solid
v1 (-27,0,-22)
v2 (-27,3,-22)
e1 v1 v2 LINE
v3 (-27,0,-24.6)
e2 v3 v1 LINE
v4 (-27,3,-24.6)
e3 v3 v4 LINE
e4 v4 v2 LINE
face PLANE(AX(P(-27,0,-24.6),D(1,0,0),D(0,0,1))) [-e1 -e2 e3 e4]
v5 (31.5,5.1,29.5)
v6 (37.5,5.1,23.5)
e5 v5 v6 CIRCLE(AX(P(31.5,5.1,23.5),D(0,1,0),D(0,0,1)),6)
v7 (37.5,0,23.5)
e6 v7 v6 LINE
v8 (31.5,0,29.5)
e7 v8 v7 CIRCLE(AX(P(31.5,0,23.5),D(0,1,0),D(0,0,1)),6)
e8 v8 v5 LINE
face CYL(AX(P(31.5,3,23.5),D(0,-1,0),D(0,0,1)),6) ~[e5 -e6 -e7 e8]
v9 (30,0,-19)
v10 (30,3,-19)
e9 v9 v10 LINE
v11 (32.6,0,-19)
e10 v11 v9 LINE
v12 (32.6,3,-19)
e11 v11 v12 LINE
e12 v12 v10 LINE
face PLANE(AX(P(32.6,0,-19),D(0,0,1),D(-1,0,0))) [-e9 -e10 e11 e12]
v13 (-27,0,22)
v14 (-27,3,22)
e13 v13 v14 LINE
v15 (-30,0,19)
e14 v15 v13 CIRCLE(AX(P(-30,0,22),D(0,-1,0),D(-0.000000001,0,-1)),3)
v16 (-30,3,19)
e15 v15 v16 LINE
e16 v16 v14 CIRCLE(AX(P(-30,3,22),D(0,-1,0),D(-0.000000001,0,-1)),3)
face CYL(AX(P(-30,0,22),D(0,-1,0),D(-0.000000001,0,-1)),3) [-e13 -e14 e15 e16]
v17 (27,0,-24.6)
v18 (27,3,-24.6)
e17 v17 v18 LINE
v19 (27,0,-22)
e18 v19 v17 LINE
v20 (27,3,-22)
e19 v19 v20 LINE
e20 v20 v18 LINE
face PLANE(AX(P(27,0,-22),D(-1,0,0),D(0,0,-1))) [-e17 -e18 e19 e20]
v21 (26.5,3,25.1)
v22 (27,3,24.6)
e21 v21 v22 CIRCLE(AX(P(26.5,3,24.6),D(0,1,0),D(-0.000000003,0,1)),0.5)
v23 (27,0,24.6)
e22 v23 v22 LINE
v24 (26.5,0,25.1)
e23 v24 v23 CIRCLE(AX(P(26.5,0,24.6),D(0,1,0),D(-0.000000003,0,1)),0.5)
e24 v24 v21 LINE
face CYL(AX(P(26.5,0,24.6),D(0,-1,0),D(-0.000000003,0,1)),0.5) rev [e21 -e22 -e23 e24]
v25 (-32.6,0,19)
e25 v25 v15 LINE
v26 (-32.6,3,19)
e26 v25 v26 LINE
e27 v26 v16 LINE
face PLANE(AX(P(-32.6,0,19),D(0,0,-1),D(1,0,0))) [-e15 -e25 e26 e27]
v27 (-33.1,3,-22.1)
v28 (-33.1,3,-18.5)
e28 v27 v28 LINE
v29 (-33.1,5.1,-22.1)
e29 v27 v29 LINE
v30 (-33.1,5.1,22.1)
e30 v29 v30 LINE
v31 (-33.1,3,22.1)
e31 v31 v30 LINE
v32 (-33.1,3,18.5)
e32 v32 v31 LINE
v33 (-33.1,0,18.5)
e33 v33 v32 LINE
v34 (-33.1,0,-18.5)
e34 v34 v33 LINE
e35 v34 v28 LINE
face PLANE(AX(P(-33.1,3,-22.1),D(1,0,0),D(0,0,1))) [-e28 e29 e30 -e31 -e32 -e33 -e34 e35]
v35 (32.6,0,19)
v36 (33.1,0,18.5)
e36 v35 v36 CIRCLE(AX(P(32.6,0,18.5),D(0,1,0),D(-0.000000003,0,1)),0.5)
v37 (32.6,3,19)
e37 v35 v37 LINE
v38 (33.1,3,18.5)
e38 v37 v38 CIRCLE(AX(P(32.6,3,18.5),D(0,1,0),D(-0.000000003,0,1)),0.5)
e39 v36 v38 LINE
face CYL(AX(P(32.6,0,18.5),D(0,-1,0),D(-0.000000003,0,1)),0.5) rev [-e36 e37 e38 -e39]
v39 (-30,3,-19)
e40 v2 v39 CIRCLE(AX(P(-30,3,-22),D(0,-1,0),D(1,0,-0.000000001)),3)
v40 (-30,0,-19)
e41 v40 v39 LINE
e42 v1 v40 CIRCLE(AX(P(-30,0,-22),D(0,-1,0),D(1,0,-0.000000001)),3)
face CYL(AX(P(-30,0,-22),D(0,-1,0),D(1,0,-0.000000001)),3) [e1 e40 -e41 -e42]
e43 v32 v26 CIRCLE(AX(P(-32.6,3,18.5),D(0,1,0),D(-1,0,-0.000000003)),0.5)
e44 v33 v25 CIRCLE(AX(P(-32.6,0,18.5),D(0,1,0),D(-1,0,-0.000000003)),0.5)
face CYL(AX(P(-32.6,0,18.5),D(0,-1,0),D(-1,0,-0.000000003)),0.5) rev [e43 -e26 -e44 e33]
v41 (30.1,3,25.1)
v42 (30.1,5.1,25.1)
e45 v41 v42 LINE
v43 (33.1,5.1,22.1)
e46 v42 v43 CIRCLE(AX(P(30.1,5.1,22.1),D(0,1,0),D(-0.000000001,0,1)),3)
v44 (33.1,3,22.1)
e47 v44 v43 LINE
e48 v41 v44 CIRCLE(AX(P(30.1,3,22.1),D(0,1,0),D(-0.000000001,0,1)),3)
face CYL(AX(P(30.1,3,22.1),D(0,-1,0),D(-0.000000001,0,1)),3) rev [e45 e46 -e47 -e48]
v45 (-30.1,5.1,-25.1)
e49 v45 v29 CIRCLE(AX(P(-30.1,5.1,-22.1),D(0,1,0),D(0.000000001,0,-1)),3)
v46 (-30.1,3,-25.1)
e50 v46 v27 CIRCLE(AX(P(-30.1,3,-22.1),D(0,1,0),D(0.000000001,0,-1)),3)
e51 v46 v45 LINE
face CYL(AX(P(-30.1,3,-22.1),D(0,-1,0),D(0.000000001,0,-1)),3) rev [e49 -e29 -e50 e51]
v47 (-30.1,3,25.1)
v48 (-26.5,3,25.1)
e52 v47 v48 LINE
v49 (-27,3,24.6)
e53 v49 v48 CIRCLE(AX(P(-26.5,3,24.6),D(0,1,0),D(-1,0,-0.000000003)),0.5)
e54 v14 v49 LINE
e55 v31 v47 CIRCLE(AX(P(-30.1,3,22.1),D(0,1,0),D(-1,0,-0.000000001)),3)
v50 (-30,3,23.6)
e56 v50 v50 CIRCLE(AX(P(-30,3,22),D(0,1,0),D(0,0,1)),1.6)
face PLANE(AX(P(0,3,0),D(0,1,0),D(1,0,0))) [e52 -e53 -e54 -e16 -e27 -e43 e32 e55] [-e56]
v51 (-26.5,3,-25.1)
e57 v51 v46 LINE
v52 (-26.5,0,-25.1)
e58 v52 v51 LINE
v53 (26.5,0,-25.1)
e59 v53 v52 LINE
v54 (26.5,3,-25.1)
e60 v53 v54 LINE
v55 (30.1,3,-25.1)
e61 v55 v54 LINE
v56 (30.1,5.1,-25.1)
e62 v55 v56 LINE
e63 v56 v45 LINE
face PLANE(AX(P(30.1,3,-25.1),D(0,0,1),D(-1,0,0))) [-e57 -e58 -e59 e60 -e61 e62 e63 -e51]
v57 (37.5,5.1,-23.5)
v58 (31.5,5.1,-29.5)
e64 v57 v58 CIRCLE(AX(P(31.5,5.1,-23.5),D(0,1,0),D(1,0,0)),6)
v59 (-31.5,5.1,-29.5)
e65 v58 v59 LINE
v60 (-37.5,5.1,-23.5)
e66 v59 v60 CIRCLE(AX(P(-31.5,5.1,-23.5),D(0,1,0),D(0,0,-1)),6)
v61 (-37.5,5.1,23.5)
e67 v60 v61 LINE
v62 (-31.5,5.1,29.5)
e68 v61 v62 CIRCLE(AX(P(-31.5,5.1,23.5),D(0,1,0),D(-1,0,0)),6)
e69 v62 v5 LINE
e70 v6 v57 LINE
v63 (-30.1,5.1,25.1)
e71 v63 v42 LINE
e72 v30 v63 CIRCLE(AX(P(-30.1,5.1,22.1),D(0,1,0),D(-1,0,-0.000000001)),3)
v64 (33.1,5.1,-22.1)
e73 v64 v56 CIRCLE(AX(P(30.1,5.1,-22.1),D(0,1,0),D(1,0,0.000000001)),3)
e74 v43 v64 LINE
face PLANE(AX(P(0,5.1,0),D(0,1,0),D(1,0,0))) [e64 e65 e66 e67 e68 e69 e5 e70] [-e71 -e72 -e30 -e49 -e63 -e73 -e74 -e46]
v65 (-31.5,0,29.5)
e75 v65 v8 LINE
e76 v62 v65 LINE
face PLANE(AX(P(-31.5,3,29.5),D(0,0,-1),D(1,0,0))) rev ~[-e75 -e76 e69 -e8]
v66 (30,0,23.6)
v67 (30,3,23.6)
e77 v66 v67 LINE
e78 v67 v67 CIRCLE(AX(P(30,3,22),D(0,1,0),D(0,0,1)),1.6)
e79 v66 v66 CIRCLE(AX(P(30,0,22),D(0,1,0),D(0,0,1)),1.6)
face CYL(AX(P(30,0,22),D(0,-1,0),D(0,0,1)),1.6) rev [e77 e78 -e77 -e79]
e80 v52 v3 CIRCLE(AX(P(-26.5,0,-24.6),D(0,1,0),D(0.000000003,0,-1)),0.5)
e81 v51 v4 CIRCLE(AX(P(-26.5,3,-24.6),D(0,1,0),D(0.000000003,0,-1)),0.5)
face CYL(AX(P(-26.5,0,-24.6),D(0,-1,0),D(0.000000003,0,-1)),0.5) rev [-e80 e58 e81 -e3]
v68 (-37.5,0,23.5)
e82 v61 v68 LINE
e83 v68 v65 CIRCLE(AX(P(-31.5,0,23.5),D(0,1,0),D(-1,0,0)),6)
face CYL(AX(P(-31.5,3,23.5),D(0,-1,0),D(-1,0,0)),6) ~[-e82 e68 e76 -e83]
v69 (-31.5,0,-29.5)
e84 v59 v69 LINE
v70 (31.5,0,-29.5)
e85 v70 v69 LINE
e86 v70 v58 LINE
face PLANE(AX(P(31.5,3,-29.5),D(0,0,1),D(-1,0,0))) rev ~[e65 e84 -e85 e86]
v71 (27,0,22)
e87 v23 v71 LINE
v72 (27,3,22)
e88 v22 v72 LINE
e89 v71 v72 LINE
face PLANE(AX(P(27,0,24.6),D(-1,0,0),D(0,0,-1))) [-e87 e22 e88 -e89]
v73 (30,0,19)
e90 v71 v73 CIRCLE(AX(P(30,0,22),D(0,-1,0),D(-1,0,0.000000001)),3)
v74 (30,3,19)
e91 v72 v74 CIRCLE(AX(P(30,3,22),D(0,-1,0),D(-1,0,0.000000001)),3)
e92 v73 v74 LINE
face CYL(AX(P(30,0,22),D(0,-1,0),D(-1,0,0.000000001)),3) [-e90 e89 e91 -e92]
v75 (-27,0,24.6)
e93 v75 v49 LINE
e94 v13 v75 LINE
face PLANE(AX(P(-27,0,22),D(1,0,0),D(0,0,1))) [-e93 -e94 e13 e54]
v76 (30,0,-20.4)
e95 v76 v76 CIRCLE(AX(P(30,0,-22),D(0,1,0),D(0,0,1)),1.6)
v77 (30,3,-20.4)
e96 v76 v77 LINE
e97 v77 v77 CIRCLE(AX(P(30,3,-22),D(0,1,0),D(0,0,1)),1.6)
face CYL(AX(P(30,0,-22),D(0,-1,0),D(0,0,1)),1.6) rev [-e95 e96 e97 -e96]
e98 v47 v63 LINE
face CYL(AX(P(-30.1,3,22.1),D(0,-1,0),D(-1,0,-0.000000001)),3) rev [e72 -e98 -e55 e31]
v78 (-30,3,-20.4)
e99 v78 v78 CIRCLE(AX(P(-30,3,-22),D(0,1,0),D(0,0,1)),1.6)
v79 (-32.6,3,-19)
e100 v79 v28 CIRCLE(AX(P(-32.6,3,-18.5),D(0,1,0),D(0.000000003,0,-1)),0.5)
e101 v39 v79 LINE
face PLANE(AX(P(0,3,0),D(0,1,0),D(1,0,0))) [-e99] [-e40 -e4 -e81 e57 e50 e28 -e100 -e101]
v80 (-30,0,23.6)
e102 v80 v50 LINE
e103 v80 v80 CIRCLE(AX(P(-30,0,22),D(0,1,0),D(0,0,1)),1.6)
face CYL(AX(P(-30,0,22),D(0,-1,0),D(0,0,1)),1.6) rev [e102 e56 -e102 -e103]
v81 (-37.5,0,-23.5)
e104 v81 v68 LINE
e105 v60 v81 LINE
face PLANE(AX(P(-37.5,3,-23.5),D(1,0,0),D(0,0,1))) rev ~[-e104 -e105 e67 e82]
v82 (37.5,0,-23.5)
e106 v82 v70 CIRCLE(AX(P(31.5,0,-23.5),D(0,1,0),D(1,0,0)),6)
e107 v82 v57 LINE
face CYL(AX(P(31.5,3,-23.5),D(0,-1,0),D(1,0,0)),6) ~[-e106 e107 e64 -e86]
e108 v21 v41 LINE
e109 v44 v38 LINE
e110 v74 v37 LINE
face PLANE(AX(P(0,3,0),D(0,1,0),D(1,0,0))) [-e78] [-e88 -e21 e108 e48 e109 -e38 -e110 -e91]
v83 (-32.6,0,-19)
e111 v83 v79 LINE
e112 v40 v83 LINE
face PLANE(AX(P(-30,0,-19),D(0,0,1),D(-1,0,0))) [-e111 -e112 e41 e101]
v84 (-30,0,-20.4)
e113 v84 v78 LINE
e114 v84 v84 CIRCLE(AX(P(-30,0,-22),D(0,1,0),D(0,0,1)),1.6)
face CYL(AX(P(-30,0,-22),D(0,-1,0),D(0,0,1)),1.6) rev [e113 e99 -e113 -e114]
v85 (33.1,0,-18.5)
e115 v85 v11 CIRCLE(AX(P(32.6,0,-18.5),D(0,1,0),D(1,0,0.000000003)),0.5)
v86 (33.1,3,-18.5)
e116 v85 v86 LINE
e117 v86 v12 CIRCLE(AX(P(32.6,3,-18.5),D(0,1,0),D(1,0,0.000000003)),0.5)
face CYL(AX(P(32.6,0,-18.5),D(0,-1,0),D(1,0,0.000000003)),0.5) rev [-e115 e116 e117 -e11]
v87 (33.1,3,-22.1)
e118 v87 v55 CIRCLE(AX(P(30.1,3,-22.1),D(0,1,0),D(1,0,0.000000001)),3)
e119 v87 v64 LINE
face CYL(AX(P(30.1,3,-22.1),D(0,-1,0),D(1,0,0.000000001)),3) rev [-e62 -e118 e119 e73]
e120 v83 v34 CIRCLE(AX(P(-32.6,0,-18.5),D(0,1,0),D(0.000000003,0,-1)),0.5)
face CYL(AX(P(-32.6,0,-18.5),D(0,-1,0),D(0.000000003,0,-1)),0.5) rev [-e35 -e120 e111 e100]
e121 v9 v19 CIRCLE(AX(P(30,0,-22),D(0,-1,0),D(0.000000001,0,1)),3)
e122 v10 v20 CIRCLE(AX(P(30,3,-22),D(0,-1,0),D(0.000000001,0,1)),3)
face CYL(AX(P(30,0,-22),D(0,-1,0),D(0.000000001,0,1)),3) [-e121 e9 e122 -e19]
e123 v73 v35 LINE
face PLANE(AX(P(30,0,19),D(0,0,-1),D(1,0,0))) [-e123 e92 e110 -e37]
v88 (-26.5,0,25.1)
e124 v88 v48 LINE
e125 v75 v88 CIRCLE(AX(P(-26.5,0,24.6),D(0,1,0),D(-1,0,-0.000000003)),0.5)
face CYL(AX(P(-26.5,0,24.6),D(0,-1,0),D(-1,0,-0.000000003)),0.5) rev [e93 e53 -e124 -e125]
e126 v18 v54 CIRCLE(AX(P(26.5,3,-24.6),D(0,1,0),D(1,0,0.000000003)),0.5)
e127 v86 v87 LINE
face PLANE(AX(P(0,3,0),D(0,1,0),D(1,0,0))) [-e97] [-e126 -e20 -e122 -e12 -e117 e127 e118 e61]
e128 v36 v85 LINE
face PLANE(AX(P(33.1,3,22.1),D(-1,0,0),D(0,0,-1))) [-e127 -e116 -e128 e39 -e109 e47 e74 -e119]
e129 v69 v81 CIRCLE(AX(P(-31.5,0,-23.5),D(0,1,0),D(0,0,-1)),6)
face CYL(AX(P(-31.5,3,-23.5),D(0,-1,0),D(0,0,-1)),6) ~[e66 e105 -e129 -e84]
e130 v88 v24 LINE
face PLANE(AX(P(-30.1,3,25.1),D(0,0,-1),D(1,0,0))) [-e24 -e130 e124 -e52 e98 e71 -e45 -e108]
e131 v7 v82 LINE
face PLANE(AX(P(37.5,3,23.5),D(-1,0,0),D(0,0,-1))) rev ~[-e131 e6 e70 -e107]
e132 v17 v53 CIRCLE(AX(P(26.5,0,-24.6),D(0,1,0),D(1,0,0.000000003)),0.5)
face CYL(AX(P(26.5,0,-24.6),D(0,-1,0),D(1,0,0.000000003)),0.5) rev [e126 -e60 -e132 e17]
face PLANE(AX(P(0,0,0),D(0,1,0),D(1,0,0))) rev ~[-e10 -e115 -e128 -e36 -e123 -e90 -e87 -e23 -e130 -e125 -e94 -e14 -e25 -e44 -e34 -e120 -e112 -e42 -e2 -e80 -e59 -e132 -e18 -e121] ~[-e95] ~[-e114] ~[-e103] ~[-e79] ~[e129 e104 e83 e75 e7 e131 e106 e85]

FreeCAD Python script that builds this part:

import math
import FreeCAD as App
import Part
import Sketcher
from FreeCAD import Vector
Q = App.Units.Quantity

doc = App.newDocument("Part")
body = doc.addObject("PartDesign::Body", "Body")

# Sketch on XZ plane
sketch1 = doc.addObject("Sketcher::SketchObject", "Sketch")
body.addObject(sketch1)
sketch1.AttachmentSupport = (doc.XZ_Plane, [""])
sketch1.MapMode = "FlatFace"
sketch1.addGeometry([
    Part.LineSegment(Vector(-31.5, 29.5, 0), Vector(31.5, 29.5, 0)),  # 0
    Part.ArcOfCircle(Part.Circle(Vector(31.5, 23.5, 0), Vector(0, 0, 1), 6), math.radians(0), math.radians(90)),  # 1
    Part.LineSegment(Vector(37.5, 23.5, 0), Vector(37.5, -23.5, 0)),  # 2
    Part.ArcOfCircle(Part.Circle(Vector(31.5, -23.5, 0), Vector(0, 0, 1), 6), math.radians(-90), math.radians(0)),  # 3
    Part.LineSegment(Vector(31.5, -29.5, 0), Vector(-31.5, -29.5, 0)),  # 4
    Part.ArcOfCircle(Part.Circle(Vector(-31.5, -23.5, 0), Vector(0, 0, 1), 6), math.radians(180), math.radians(270)),  # 5
    Part.LineSegment(Vector(-37.5, -23.5, 0), Vector(-37.5, 23.5, 0)),  # 6
    Part.ArcOfCircle(Part.Circle(Vector(-31.5, 23.5, 0), Vector(0, 0, 1), 6), math.radians(90), math.radians(180)),  # 7
    Part.Circle(Vector(-30, 22, 0), Vector(0, 0, 1), 1.6),  # 8
    Part.Circle(Vector(30, 22, 0), Vector(0, 0, 1), 1.6),  # 9
    Part.Circle(Vector(-30, -22, 0), Vector(0, 0, 1), 1.6),  # 10
    Part.LineSegment(Vector(-27, 24.6, 0), Vector(-27, 22, 0)),  # 11
    Part.ArcOfCircle(Part.Circle(Vector(-30, 22, 0), Vector(0, 0, 1), 3), math.radians(-90), math.radians(0)),  # 12
    Part.LineSegment(Vector(-30, 19, 0), Vector(-32.6, 19, 0)),  # 13
    Part.ArcOfCircle(Part.Circle(Vector(-32.6, 18.5, 0), Vector(0, 0, 1), 0.5), math.radians(90), math.radians(180)),  # 14
    Part.LineSegment(Vector(-33.1, 18.5, 0), Vector(-33.1, -18.5, 0)),  # 15
    Part.ArcOfCircle(Part.Circle(Vector(-32.6, -18.5, 0), Vector(0, 0, 1), 0.5), math.radians(180), math.radians(270)),  # 16
    Part.LineSegment(Vector(-32.6, -19, 0), Vector(-30, -19, 0)),  # 17
    Part.ArcOfCircle(Part.Circle(Vector(-30, -22, 0), Vector(0, 0, 1), 3), math.radians(0), math.radians(90)),  # 18
    Part.LineSegment(Vector(-27, -22, 0), Vector(-27, -24.6, 0)),  # 19
    Part.ArcOfCircle(Part.Circle(Vector(-26.5, -24.6, 0), Vector(0, 0, 1), 0.5), math.radians(180), math.radians(270)),  # 20
    Part.LineSegment(Vector(-26.5, -25.1, 0), Vector(26.5, -25.1, 0)),  # 21
    Part.ArcOfCircle(Part.Circle(Vector(26.5, -24.6, 0), Vector(0, 0, 1), 0.5), math.radians(-90), math.radians(0)),  # 22
    Part.LineSegment(Vector(27, -24.6, 0), Vector(27, -22, 0)),  # 23
    Part.ArcOfCircle(Part.Circle(Vector(30, -22, 0), Vector(0, 0, 1), 3), math.radians(90), math.radians(180)),  # 24
    Part.LineSegment(Vector(30, -19, 0), Vector(32.6, -19, 0)),  # 25
    Part.ArcOfCircle(Part.Circle(Vector(32.6, -18.5, 0), Vector(0, 0, 1), 0.5), math.radians(-90), math.radians(0)),  # 26
    Part.LineSegment(Vector(33.1, -18.5, 0), Vector(33.1, 18.5, 0)),  # 27
    Part.ArcOfCircle(Part.Circle(Vector(32.6, 18.5, 0), Vector(0, 0, 1), 0.5), math.radians(0), math.radians(90)),  # 28
    Part.LineSegment(Vector(32.6, 19, 0), Vector(30, 19, 0)),  # 29
    Part.ArcOfCircle(Part.Circle(Vector(30, 22, 0), Vector(0, 0, 1), 3), math.radians(180), math.radians(270)),  # 30
    Part.LineSegment(Vector(27, 22, 0), Vector(27, 24.6, 0)),  # 31
    Part.ArcOfCircle(Part.Circle(Vector(26.5, 24.6, 0), Vector(0, 0, 1), 0.5), math.radians(0), math.radians(90)),  # 32
    Part.LineSegment(Vector(26.5, 25.1, 0), Vector(-26.5, 25.1, 0)),  # 33
    Part.ArcOfCircle(Part.Circle(Vector(-26.5, 24.6, 0), Vector(0, 0, 1), 0.5), math.radians(90), math.radians(180)),  # 34
    Part.Circle(Vector(30, -22, 0), Vector(0, 0, 1), 1.6),  # 35
], False)
sketch1.addConstraint([
    Sketcher.Constraint("Tangent", 0, 2, 1, 2),
    Sketcher.Constraint("Tangent", 1, 1, 2, 1),
    Sketcher.Constraint("Tangent", 2, 2, 3, 2),
    Sketcher.Constraint("Tangent", 3, 1, 4, 1),
    Sketcher.Constraint("Tangent", 4, 2, 5, 2),
    Sketcher.Constraint("Tangent", 5, 1, 6, 1),
    Sketcher.Constraint("Tangent", 6, 2, 7, 2),
    Sketcher.Constraint("Tangent", 7, 1, 0, 1),
    Sketcher.Constraint("Tangent", 11, 2, 12, 2),
    Sketcher.Constraint("Tangent", 12, 1, 13, 1),
    Sketcher.Constraint("Tangent", 13, 2, 14, 1),
    Sketcher.Constraint("Tangent", 14, 2, 15, 1),
    Sketcher.Constraint("Tangent", 15, 2, 16, 1),
    Sketcher.Constraint("Tangent", 16, 2, 17, 1),
    Sketcher.Constraint("Tangent", 17, 2, 18, 2),
    Sketcher.Constraint("Tangent", 18, 1, 19, 1),
    Sketcher.Constraint("Tangent", 19, 2, 20, 1),
    Sketcher.Constraint("Tangent", 20, 2, 21, 1),
    Sketcher.Constraint("Tangent", 21, 2, 22, 1),
    Sketcher.Constraint("Tangent", 22, 2, 23, 1),
    Sketcher.Constraint("Tangent", 23, 2, 24, 2),
    Sketcher.Constraint("Tangent", 24, 1, 25, 1),
    Sketcher.Constraint("Tangent", 25, 2, 26, 1),
    Sketcher.Constraint("Tangent", 26, 2, 27, 1),
    Sketcher.Constraint("Tangent", 27, 2, 28, 1),
    Sketcher.Constraint("Tangent", 28, 2, 29, 1),
    Sketcher.Constraint("Tangent", 29, 2, 30, 2),
    Sketcher.Constraint("Tangent", 30, 1, 31, 1),
    Sketcher.Constraint("Tangent", 31, 2, 32, 1),
    Sketcher.Constraint("Tangent", 32, 2, 33, 1),
    Sketcher.Constraint("Tangent", 33, 2, 34, 1),
    Sketcher.Constraint("Tangent", 34, 2, 11, 1),
    Sketcher.Constraint("Horizontal", 0),
    Sketcher.Constraint("Vertical", 2),
    Sketcher.Constraint("Horizontal", 4),
    Sketcher.Constraint("Vertical", 6),
    Sketcher.Constraint("Vertical", 11),
    Sketcher.Constraint("Horizontal", 13),
    Sketcher.Constraint("Vertical", 15),
    Sketcher.Constraint("Horizontal", 17),
    Sketcher.Constraint("Vertical", 19),
    Sketcher.Constraint("Horizontal", 21),
    Sketcher.Constraint("Vertical", 23),
    Sketcher.Constraint("Horizontal", 25),
    Sketcher.Constraint("Vertical", 27),
    Sketcher.Constraint("Horizontal", 29),
    Sketcher.Constraint("Vertical", 31),
    Sketcher.Constraint("Horizontal", 33),
    Sketcher.Constraint("Coincident", 12, 3, 8, 3),
    Sketcher.Constraint("Coincident", 18, 3, 10, 3),
    Sketcher.Constraint("Coincident", 30, 3, 9, 3),
    Sketcher.Constraint("Coincident", 35, 3, 24, 3),
    Sketcher.Constraint("Equal", 1, 3),
    Sketcher.Constraint("Equal", 3, 5),
    Sketcher.Constraint("Equal", 5, 7),
    Sketcher.Constraint("Equal", 8, 9),
    Sketcher.Constraint("Equal", 9, 10),
    Sketcher.Constraint("Equal", 14, 16),
    Sketcher.Constraint("Equal", 12, 18),
    Sketcher.Constraint("Equal", 16, 20),
    Sketcher.Constraint("Equal", 20, 22),
    Sketcher.Constraint("Equal", 18, 24),
    Sketcher.Constraint("Equal", 22, 26),
    Sketcher.Constraint("Equal", 26, 28),
    Sketcher.Constraint("Equal", 24, 30),
    Sketcher.Constraint("Equal", 28, 32),
    Sketcher.Constraint("Equal", 32, 34),
    Sketcher.Constraint("Equal", 10, 35),
    Sketcher.Constraint("Symmetric", 1, 3, 5, 3, -1, 1),
    Sketcher.Constraint("Symmetric", 9, 3, 10, 3, -1, 1),
    Sketcher.Constraint("Symmetric", 8, 3, 24, 3, -1, 1),
    Sketcher.Constraint("Symmetric", 8, 3, 9, 3, -2),
    Sketcher.Constraint("Equal", 17, 25),
    Sketcher.Constraint("Equal", 29, 11),
    Sketcher.Constraint("Equal", 11, 19),
    Sketcher.Constraint("Radius", 1, Q("6 mm")),
    Sketcher.Constraint("Radius", 12, Q("3 mm")),
    Sketcher.Constraint("Diameter", 8, Q("3.2 mm")),
    Sketcher.Constraint("Radius", 14, Q("0.5 mm")),
    Sketcher.Constraint("DistanceX", 0, 1, 0, 2, Q("63 mm")),
    Sketcher.Constraint("DistanceX", 21, 1, 21, 2, Q("53 mm")),
    Sketcher.Constraint("DistanceY", 2, 2, 2, 1, Q("47 mm")),
    Sketcher.Constraint("DistanceY", 15, 2, 15, 1, Q("37 mm")),
    Sketcher.Constraint("DistanceX", 13, 2, 13, 1, Q("2.6 mm")),
])
pad1 = doc.addObject("PartDesign::Pad", "Pad")
body.addObject(pad1)
pad1.Profile = sketch1
pad1.Length = 3
pad1.Reversed = True

# Sketch on XZ plane
sketch2 = doc.addObject("Sketcher::SketchObject", "Sketch001")
body.addObject(sketch2)
sketch2.AttachmentSupport = (doc.XZ_Plane, [""])
sketch2.MapMode = "FlatFace"
sketch2.AttachmentOffset = App.Placement(Vector(0, 0, -3), App.Rotation())
sketch2.addGeometry([
    Part.LineSegment(Vector(-31.5, 29.5, 0), Vector(31.5, 29.5, 0)),  # 0
    Part.ArcOfCircle(Part.Circle(Vector(31.5, 23.5, 0), Vector(0, 0, 1), 6), math.radians(0), math.radians(90)),  # 1
    Part.LineSegment(Vector(37.5, 23.5, 0), Vector(37.5, -23.5, 0)),  # 2
    Part.ArcOfCircle(Part.Circle(Vector(31.5, -23.5, 0), Vector(0, 0, 1), 6), math.radians(-90), math.radians(0)),  # 3
    Part.LineSegment(Vector(31.5, -29.5, 0), Vector(-31.5, -29.5, 0)),  # 4
    Part.ArcOfCircle(Part.Circle(Vector(-31.5, -23.5, 0), Vector(0, 0, 1), 6), math.radians(180), math.radians(270)),  # 5
    Part.LineSegment(Vector(-37.5, -23.5, 0), Vector(-37.5, 23.5, 0)),  # 6
    Part.ArcOfCircle(Part.Circle(Vector(-31.5, 23.5, 0), Vector(0, 0, 1), 6), math.radians(90), math.radians(180)),  # 7
    Part.LineSegment(Vector(30.1, 25.1, 0), Vector(-30.1, 25.1, 0)),  # 8
    Part.ArcOfCircle(Part.Circle(Vector(-30.1, 22.1, 0), Vector(0, 0, 1), 3), math.radians(90), math.radians(180)),  # 9
    Part.LineSegment(Vector(-33.1, 22.1, 0), Vector(-33.1, -22.1, 0)),  # 10
    Part.ArcOfCircle(Part.Circle(Vector(-30.1, -22.1, 0), Vector(0, 0, 1), 3), math.radians(180), math.radians(270)),  # 11
    Part.LineSegment(Vector(-30.1, -25.1, 0), Vector(30.1, -25.1, 0)),  # 12
    Part.ArcOfCircle(Part.Circle(Vector(30.1, -22.1, 0), Vector(0, 0, 1), 3), math.radians(-90), math.radians(0)),  # 13
    Part.LineSegment(Vector(33.1, -22.1, 0), Vector(33.1, 22.1, 0)),  # 14
    Part.ArcOfCircle(Part.Circle(Vector(30.1, 22.1, 0), Vector(0, 0, 1), 3), math.radians(0), math.radians(90)),  # 15
], False)
sketch2.addConstraint([
    Sketcher.Constraint("Tangent", 0, 2, 1, 2),
    Sketcher.Constraint("Tangent", 1, 1, 2, 1),
    Sketcher.Constraint("Tangent", 2, 2, 3, 2),
    Sketcher.Constraint("Tangent", 3, 1, 4, 1),
    Sketcher.Constraint("Tangent", 4, 2, 5, 2),
    Sketcher.Constraint("Tangent", 5, 1, 6, 1),
    Sketcher.Constraint("Tangent", 6, 2, 7, 2),
    Sketcher.Constraint("Tangent", 7, 1, 0, 1),
    Sketcher.Constraint("Tangent", 8, 2, 9, 1),
    Sketcher.Constraint("Tangent", 9, 2, 10, 1),
    Sketcher.Constraint("Tangent", 10, 2, 11, 1),
    Sketcher.Constraint("Tangent", 11, 2, 12, 1),
    Sketcher.Constraint("Tangent", 12, 2, 13, 1),
    Sketcher.Constraint("Tangent", 13, 2, 14, 1),
    Sketcher.Constraint("Tangent", 14, 2, 15, 1),
    Sketcher.Constraint("Tangent", 15, 2, 8, 1),
    Sketcher.Constraint("Horizontal", 0),
    Sketcher.Constraint("Vertical", 2),
    Sketcher.Constraint("Horizontal", 4),
    Sketcher.Constraint("Vertical", 6),
    Sketcher.Constraint("Horizontal", 8),
    Sketcher.Constraint("Vertical", 10),
    Sketcher.Constraint("Horizontal", 12),
    Sketcher.Constraint("Vertical", 14),
    Sketcher.Constraint("Equal", 1, 3),
    Sketcher.Constraint("Equal", 3, 5),
    Sketcher.Constraint("Equal", 5, 7),
    Sketcher.Constraint("Equal", 9, 11),
    Sketcher.Constraint("Equal", 11, 13),
    Sketcher.Constraint("Equal", 13, 15),
    Sketcher.Constraint("Symmetric", 1, 3, 5, 3, -1, 1),
    Sketcher.Constraint("Symmetric", 9, 3, 13, 3, -1, 1),
    Sketcher.Constraint("Radius", 1, Q("6 mm")),
    Sketcher.Constraint("Radius", 9, Q("3 mm")),
    Sketcher.Constraint("DistanceX", 0, 1, 0, 2, Q("63 mm")),
    Sketcher.Constraint("DistanceY", 2, 2, 2, 1, Q("47 mm")),
    Sketcher.Constraint("DistanceX", 8, 2, 8, 1, Q("60.2 mm")),
    Sketcher.Constraint("DistanceY", 10, 2, 10, 1, Q("44.2 mm")),
])
pad2 = doc.addObject("PartDesign::Pad", "Pad001")
body.addObject(pad2)
pad2.Profile = sketch2
pad2.Length = 2.1
pad2.Reversed = True

doc.recompute()
